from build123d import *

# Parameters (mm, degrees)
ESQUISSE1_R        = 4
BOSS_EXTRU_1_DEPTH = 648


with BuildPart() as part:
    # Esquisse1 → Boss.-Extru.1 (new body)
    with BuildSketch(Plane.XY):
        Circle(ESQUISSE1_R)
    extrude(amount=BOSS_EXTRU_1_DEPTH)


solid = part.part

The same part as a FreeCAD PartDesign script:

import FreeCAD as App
import Part
import Sketcher

V = App.Vector

doc = App.newDocument("Part")
body = doc.addObject("PartDesign::Body", "Body")

# Sketch on XY plane
sketch1 = body.newObject("Sketcher::SketchObject", "Sketch")
sketch1.AttachmentSupport = (doc.getObject("XY_Plane"), [""])
sketch1.MapMode = "FlatFace"
sketch1.addGeometry(Part.Circle(V(0, 0, 0), V(0, 0, 1), 4), False)
sketch1.addConstraint([
    Sketcher.Constraint("Coincident", 0, 3, -1, 1),
    Sketcher.Constraint("Diameter", 0, 8.0),
])
pad1 = body.newObject("PartDesign::Pad", "Pad")
pad1.Profile = sketch1
pad1.Length = 648

doc.recompute()
